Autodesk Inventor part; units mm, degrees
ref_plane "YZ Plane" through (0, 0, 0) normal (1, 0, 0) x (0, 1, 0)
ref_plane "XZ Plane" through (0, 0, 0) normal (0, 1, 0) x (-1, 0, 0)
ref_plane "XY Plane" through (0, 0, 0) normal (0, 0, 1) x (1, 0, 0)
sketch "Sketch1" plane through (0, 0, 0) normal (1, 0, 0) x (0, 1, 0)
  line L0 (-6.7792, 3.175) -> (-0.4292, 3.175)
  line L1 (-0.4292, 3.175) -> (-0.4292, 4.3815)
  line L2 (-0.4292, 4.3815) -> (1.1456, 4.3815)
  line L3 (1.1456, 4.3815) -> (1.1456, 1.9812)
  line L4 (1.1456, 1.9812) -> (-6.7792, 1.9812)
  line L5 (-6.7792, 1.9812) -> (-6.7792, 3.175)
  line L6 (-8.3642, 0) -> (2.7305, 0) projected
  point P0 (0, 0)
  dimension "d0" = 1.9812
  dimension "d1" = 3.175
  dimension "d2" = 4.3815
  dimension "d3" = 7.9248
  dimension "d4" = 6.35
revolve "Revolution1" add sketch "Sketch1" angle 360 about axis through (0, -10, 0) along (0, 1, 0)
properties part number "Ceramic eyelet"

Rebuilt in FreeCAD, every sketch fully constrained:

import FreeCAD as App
import Part
import Sketcher
Q = App.Units.Quantity


def add_polygon(sketch, points):
    """Adds a closed chain of lines whose ends are joined by coincident constraints."""
    first, n = sketch.GeometryCount, len(points)
    for a, b in zip(points, points[1:] + points[:1]):
        sketch.addGeometry(Part.LineSegment(App.Vector(*a, 0), App.Vector(*b, 0)), False)
    for i in range(n):
        sketch.addConstraint(Sketcher.Constraint("Coincident", first + i, 2, first + (i + 1) % n, 1))

doc = App.newDocument("Part")
params = doc.addObject("Spreadsheet::Sheet", "Params")
for row, (alias, value) in enumerate([
    ("sketch1_width", "0.25 in"),
    ("sketch1_width2", "0.312 in"),
    ("revolution_angle", "360 deg"),
], start=1):
    params.set(f"A{row}", alias)
    params.set(f"B{row}", "=" + value)
    params.setAlias(f"B{row}", alias)

body = doc.addObject("PartDesign::Body", "Body")

sketch1 = doc.addObject("Sketcher::SketchObject", "Sketch")
body.addObject(sketch1)
sketch1.AttachmentSupport = (doc.YZ_Plane, [""])
sketch1.MapMode = "FlatFace"
add_polygon(sketch1, [(-0.4, 3.2), (-6.8, 3.2), (-6.8, 2), (1.1, 2), (1.1, 4.4), (-0.4, 4.4)])
sketch1.addConstraint([
    Sketcher.Constraint("Horizontal", 0),
    Sketcher.Constraint("Vertical", 1),
    Sketcher.Constraint("Horizontal", 2),
    Sketcher.Constraint("Vertical", 3),
    Sketcher.Constraint("Horizontal", 4),
    Sketcher.Constraint("Vertical", 5),
    Sketcher.Constraint("DistanceX", 0, 2, 0, 1, Q("0.25 in")),
    Sketcher.Constraint("DistanceX", 2, 1, 2, 2, Q("0.312 in")),
    Sketcher.Constraint("DistanceY", -1, 1, 0, 2, Q("0.125 in")),
    Sketcher.Constraint("DistanceY", -1, 1, 1, 2, Q("0.078 in")),
    Sketcher.Constraint("DistanceY", -1, 1, 3, 2, Q("0.1725 in")),
    Sketcher.Constraint("DistanceX", 0, 2, -1, 1, Q("0.2669 in")),
])
sketch1.setExpression("Constraints[12]", "Params.sketch1_width")
sketch1.setExpression("Constraints[13]", "Params.sketch1_width2")
revolution = doc.addObject("PartDesign::Revolution", "Revolution")
body.addObject(revolution)
revolution.Profile = sketch1
revolution.ReferenceAxis = (sketch1, ["H_Axis"])
revolution.setExpression("Angle", "Params.revolution_angle")

doc.recompute()
